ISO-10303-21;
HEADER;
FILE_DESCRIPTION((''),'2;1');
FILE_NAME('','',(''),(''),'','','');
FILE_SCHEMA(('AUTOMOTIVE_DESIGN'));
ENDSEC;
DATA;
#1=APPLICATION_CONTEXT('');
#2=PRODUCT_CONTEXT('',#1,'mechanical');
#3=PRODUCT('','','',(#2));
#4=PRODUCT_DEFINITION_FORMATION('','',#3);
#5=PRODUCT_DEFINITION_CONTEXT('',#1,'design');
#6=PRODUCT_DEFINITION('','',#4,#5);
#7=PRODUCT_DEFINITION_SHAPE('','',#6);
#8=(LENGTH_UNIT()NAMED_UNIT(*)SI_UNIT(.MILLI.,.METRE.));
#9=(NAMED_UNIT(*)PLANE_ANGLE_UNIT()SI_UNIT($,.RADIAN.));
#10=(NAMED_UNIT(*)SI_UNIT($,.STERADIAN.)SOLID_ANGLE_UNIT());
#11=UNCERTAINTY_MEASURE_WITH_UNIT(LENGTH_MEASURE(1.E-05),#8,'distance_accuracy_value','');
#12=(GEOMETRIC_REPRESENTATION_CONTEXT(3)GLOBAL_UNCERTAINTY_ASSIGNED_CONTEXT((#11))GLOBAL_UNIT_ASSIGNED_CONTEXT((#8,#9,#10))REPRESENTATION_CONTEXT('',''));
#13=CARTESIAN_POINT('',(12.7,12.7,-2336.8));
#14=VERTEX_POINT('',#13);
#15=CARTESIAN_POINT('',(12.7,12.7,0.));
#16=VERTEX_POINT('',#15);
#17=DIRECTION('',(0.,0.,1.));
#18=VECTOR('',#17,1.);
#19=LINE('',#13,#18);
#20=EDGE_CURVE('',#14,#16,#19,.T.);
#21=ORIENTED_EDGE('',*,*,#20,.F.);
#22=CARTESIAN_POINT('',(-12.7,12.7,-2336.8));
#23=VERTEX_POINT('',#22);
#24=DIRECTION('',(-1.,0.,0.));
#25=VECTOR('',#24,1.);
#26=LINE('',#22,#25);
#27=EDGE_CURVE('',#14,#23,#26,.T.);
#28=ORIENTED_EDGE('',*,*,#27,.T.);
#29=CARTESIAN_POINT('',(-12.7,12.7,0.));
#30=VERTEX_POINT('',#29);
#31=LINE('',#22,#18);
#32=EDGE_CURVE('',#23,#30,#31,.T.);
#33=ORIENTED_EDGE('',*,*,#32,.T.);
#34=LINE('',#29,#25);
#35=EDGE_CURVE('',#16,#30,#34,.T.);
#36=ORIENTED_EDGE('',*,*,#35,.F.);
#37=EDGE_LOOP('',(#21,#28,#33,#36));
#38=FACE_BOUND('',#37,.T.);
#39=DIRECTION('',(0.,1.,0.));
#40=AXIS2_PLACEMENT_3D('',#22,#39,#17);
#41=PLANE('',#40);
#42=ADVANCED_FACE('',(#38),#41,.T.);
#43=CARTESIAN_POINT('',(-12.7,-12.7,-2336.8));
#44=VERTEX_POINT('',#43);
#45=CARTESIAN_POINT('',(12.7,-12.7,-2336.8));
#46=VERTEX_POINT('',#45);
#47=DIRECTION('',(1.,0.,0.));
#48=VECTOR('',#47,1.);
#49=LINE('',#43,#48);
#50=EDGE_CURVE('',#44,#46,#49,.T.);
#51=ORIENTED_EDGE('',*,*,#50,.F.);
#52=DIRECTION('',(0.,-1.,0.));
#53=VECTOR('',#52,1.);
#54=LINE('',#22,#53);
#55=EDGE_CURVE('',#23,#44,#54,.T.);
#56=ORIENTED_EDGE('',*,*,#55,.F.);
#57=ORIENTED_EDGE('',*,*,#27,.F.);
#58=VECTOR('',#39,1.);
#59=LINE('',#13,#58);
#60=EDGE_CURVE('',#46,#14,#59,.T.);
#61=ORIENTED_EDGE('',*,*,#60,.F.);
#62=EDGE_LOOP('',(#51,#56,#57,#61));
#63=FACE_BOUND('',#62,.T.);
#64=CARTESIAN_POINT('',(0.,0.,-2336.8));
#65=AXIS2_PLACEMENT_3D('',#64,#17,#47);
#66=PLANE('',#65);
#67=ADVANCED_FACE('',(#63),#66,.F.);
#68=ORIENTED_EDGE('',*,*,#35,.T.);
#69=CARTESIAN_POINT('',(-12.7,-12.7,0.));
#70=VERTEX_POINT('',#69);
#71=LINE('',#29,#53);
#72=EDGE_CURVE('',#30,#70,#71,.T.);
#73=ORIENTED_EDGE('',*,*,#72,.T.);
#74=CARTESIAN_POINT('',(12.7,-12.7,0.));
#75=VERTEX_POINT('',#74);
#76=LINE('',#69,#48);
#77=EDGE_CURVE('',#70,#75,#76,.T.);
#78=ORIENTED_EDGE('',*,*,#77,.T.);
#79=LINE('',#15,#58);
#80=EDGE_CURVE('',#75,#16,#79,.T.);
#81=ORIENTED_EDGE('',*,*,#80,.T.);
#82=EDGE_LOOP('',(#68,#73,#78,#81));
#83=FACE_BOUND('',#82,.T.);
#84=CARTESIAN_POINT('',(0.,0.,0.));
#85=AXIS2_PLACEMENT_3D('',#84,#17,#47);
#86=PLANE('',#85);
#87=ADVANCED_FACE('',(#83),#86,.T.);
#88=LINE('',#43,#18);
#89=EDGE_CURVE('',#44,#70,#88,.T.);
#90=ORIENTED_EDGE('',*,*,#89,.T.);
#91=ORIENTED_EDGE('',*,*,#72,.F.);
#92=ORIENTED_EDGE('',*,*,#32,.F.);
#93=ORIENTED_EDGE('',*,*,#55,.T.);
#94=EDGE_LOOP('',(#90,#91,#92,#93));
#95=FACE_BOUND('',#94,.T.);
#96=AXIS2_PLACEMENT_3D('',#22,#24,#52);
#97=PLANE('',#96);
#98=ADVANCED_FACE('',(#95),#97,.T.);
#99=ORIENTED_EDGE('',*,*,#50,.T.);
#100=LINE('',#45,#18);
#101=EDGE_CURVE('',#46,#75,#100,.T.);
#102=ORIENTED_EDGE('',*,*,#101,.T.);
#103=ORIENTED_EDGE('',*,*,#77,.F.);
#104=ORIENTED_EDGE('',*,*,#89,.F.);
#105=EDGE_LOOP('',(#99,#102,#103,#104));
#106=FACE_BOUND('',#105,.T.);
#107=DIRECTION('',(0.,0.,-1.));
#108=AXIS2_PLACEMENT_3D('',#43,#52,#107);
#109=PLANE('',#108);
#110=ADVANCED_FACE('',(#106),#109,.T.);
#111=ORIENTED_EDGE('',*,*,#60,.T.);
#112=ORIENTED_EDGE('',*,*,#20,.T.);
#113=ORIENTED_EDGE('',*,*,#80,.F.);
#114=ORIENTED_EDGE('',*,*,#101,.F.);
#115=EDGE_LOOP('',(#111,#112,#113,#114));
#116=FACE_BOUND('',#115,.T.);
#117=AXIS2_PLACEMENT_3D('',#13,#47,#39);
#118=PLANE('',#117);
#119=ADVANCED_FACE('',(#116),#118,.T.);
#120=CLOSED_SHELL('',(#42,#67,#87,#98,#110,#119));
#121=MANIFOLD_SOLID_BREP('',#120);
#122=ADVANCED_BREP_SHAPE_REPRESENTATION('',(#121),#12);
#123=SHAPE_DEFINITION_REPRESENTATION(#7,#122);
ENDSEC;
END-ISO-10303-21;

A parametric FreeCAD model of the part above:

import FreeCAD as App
import Part
import Sketcher
Q = App.Units.Quantity


def add_polygon(sketch, points):
    """Adds a closed chain of lines whose ends are joined by coincident constraints."""
    first, n = sketch.GeometryCount, len(points)
    for a, b in zip(points, points[1:] + points[:1]):
        sketch.addGeometry(Part.LineSegment(App.Vector(*a, 0), App.Vector(*b, 0)), False)
    for i in range(n):
        sketch.addConstraint(Sketcher.Constraint("Coincident", first + i, 2, first + (i + 1) % n, 1))

doc = App.newDocument("Part")
body = doc.addObject("PartDesign::Body", "Body")

sketch1 = body.newObject("Sketcher::SketchObject", "Sketch")
sketch1.AttachmentSupport = (doc.getObject("XY_Plane"), [""])
sketch1.MapMode = "FlatFace"
add_polygon(sketch1, [(-13, 13), (-13, -13), (13, -13), (13, 13)])
sketch1.addConstraint(Sketcher.Constraint("Vertical", 0))
sketch1.addConstraint(Sketcher.Constraint("Horizontal", 1))
sketch1.addConstraint(Sketcher.Constraint("Vertical", 2))
sketch1.addConstraint(Sketcher.Constraint("Horizontal", 3))
sketch1.addConstraint(Sketcher.Constraint("Symmetric", 0, 2, 2, 2, -1, 1))
sketch1.addConstraint(Sketcher.Constraint("Equal", 3, 0))
sketch1.addConstraint(Sketcher.Constraint("DistanceX", 1, 1, 1, 2, Q("1 in")))
pad1 = body.newObject("PartDesign::Pad", "Pad")
pad1.Profile = sketch1
pad1.Length = Q("92 in")
pad1.Reversed = True

doc.recompute()
